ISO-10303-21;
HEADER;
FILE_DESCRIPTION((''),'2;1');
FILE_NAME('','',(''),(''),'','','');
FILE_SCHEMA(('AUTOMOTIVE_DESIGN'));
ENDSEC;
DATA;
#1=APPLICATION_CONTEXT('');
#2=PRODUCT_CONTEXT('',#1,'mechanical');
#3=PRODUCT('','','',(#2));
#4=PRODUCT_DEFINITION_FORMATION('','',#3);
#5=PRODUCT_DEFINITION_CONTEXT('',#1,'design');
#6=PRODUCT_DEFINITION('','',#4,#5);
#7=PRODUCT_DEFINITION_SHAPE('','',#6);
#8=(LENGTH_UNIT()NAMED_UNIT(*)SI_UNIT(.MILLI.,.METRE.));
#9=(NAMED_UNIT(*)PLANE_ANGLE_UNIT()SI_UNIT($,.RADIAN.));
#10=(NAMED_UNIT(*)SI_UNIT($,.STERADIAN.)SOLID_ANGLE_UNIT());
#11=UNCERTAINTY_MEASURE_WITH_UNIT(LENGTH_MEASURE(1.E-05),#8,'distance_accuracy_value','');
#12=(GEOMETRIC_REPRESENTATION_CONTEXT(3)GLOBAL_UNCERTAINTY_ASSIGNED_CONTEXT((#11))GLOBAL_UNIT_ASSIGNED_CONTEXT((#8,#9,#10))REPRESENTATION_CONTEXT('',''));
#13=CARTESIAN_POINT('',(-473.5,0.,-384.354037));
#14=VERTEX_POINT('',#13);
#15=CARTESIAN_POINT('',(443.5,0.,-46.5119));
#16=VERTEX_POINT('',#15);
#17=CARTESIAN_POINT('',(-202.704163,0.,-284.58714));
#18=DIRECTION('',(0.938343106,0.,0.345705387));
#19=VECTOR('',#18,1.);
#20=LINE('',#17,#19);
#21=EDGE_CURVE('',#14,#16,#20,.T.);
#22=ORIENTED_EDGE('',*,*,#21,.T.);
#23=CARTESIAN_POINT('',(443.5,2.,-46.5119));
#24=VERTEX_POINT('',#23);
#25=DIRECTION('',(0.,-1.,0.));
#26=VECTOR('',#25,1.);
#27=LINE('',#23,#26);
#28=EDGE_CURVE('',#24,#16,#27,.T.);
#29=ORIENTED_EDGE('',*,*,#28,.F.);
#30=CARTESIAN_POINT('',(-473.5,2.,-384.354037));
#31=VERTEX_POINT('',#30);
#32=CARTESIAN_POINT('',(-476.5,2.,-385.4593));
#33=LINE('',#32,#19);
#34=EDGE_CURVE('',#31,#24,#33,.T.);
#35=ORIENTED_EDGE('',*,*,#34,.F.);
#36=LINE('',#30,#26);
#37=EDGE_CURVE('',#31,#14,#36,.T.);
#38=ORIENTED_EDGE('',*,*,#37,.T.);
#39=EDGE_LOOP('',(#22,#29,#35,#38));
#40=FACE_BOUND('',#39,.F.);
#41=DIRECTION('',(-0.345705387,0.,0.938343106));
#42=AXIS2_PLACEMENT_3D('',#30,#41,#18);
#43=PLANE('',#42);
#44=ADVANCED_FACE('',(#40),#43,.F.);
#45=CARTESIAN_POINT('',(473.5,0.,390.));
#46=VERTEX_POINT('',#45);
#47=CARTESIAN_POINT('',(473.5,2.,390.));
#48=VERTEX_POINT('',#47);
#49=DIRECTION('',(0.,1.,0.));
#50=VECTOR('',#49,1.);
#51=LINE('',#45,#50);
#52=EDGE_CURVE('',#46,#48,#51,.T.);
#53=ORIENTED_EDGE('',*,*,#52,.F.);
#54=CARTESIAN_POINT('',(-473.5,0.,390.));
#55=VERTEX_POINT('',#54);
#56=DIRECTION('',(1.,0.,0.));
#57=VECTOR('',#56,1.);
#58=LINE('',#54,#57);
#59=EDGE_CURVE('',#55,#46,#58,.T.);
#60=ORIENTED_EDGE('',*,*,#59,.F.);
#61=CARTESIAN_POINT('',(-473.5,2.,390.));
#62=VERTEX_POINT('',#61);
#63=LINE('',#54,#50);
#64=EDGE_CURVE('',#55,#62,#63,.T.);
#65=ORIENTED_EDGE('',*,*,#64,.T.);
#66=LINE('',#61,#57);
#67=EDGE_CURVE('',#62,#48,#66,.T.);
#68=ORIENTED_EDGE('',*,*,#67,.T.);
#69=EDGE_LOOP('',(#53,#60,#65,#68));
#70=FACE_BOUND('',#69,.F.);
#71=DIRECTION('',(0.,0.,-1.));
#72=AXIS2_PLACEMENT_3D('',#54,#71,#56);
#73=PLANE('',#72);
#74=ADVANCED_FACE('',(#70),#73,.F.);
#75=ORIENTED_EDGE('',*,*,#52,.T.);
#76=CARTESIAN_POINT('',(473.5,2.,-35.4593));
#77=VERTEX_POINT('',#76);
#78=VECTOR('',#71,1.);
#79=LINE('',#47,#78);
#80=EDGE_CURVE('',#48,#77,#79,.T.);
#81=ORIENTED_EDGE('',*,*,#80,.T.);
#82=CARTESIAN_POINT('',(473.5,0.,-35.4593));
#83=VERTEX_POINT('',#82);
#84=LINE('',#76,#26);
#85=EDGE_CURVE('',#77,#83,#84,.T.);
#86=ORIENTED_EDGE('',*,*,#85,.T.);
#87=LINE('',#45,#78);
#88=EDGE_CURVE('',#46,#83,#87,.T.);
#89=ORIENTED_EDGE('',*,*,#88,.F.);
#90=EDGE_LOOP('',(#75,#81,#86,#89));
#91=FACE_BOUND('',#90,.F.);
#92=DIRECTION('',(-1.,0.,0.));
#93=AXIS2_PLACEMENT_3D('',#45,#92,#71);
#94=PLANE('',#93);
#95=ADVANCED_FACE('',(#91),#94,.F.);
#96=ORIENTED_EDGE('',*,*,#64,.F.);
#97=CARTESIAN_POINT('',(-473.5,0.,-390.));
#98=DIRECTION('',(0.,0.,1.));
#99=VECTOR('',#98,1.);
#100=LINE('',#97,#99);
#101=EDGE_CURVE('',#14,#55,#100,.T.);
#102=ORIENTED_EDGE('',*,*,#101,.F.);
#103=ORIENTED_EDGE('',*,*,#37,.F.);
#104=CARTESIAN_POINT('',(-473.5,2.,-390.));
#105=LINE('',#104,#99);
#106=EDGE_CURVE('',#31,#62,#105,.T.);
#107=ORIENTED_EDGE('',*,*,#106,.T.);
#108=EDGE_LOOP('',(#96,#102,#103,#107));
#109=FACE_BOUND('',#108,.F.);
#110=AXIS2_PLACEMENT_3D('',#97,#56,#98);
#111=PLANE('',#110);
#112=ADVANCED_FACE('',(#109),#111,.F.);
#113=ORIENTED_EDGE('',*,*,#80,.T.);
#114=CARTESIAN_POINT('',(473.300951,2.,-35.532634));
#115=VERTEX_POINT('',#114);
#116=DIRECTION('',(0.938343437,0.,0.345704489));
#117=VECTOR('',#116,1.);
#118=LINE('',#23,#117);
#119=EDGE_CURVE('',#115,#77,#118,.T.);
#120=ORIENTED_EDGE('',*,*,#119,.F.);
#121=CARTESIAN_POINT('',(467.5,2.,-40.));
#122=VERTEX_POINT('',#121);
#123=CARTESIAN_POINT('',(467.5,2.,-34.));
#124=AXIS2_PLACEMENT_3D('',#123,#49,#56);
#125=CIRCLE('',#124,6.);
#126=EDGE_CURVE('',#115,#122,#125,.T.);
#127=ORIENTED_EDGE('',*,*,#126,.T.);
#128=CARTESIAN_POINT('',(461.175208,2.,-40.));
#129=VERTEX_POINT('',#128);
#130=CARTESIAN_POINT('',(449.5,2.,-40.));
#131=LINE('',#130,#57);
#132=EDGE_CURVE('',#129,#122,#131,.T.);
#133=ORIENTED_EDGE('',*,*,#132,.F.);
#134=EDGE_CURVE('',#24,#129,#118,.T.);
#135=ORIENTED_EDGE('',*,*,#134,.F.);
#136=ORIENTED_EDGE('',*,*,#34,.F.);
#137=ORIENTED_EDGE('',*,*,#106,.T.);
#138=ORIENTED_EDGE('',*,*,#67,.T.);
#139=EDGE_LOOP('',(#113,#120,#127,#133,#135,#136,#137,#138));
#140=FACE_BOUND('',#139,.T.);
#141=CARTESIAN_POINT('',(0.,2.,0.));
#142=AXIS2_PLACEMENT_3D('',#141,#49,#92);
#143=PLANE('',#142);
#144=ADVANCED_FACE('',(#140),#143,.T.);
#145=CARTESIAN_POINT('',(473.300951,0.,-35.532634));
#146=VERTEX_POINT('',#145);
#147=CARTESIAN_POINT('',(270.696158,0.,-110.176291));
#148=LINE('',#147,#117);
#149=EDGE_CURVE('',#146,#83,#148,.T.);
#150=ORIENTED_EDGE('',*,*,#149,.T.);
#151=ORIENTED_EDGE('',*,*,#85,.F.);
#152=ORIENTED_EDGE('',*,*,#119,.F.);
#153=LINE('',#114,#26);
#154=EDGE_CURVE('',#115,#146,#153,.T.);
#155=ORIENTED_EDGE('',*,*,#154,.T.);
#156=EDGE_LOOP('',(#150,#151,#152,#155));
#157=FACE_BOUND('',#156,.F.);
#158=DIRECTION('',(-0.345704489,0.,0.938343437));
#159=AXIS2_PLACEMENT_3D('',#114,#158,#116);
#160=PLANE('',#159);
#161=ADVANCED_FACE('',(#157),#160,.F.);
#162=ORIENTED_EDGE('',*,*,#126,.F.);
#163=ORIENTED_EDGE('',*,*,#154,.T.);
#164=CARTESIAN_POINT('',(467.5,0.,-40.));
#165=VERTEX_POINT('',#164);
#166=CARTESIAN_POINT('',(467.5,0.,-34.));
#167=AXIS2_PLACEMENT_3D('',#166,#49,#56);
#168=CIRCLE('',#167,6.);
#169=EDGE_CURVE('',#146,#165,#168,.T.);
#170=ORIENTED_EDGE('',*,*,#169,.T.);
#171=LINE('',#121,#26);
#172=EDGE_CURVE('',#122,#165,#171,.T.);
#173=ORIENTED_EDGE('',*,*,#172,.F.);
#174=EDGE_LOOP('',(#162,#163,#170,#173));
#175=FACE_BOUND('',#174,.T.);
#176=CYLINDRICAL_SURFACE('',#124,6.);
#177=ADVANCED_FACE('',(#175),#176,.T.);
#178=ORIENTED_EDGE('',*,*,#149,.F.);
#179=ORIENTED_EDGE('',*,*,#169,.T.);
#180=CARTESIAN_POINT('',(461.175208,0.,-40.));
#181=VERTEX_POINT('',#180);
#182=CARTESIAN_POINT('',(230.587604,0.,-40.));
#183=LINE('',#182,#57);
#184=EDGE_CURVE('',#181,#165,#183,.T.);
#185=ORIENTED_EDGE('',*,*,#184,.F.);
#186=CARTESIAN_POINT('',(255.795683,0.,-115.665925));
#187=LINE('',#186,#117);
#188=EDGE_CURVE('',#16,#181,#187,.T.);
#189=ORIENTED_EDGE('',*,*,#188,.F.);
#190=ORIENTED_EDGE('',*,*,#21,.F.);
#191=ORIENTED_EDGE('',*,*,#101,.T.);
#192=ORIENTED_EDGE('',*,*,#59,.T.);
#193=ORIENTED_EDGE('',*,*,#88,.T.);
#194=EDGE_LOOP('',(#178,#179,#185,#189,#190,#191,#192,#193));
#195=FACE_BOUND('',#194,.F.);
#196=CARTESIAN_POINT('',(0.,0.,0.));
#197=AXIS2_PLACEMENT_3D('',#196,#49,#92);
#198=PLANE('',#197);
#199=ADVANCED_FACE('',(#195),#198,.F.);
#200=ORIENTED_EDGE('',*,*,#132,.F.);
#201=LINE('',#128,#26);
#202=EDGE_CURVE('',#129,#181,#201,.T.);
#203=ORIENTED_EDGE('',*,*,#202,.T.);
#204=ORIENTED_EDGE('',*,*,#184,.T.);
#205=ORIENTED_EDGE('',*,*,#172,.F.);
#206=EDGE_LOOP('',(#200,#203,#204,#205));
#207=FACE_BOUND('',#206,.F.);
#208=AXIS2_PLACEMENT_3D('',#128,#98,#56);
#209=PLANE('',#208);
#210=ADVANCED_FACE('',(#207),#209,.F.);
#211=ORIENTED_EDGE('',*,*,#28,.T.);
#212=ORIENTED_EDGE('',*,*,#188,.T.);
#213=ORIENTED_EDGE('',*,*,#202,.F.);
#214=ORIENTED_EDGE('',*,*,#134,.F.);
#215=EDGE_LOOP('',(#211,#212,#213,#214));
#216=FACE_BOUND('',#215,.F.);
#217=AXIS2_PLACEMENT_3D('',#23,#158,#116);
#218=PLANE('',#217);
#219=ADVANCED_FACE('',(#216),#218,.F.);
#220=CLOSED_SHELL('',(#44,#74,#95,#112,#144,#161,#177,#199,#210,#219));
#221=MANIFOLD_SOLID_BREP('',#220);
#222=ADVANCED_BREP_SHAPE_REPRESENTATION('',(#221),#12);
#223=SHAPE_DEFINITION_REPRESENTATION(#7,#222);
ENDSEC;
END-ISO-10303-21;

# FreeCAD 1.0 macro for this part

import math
import FreeCAD as App
import Part
import Sketcher
Q = App.Units.Quantity


def add_polygon(sketch, points):
    """Adds a closed chain of lines whose ends are joined by coincident constraints."""
    first, n = sketch.GeometryCount, len(points)
    for a, b in zip(points, points[1:] + points[:1]):
        sketch.addGeometry(Part.LineSegment(App.Vector(*a, 0), App.Vector(*b, 0)), False)
    for i in range(n):
        sketch.addConstraint(Sketcher.Constraint("Coincident", first + i, 2, first + (i + 1) % n, 1))

doc = App.newDocument("Part")
params = doc.addObject("Spreadsheet::Sheet", "Params")
for row, (alias, value) in enumerate([
    ("sketch1_width", "947 mm"),
    ("sketch1_height", "780 mm"),
    ("pad1_length", "2 mm"),
    ("sketch2_radius", "6 mm"),
    ("sketch2_width", "947 mm"),
    ("pocket1_length", "10 mm"),
], start=1):
    params.set(f"A{row}", alias)
    params.set(f"B{row}", "=" + value)
    params.setAlias(f"B{row}", alias)

body = doc.addObject("PartDesign::Body", "Body")

sketch1 = body.newObject("Sketcher::SketchObject", "Sketch")
sketch1.AttachmentSupport = (doc.getObject("XZ_Plane"), [""])
sketch1.MapMode = "FlatFace"
add_polygon(sketch1, [(-473.5, -390), (-473.5, 390), (473.5, 390), (473.5, -390)])
sketch1.addConstraint([
    Sketcher.Constraint("Vertical", 0),
    Sketcher.Constraint("Horizontal", 1),
    Sketcher.Constraint("Vertical", 2),
    Sketcher.Constraint("Horizontal", 3),
    Sketcher.Constraint("Symmetric", 0, 2, 2, 2, -1, 1),
    Sketcher.Constraint("DistanceX", 1, 1, 1, 2, Q("947 mm")),
    Sketcher.Constraint("DistanceY", 0, 1, 0, 2, Q("780 mm")),
])
sketch1.setExpression("Constraints[9]", "Params.sketch1_width")
sketch1.setExpression("Constraints[10]", "Params.sketch1_height")
pad1 = body.newObject("PartDesign::Pad", "Pad")
pad1.Profile = sketch1
pad1.setExpression("Length", "Params.pad1_length")
pad1.Reversed = True

sketch2 = body.newObject("Sketcher::SketchObject", "Sketch001")
sketch2.AttachmentSupport = (doc.getObject("XZ_Plane"), [""])
sketch2.MapMode = "FlatFace"
sketch2.AttachmentOffset = App.Placement(App.Vector(0, 0, -2), App.Rotation())
sketch2.addGeometry([
    Part.LineSegment(App.Vector(-473.5, -390, 0), App.Vector(-473.5, -384.354037, 0)),
    Part.LineSegment(App.Vector(-473.5, -384.354037, 0), App.Vector(443.5, -46.5119, 0)),
    Part.LineSegment(App.Vector(443.5, -46.5119, 0), App.Vector(461.175208, -40, 0)),
    Part.LineSegment(App.Vector(461.175208, -40, 0), App.Vector(467.5, -40, 0)),
    Part.ArcOfCircle(Part.Circle(App.Vector(467.5, -34, 0), App.Vector(0, 0, 1), 6), math.radians(-90), math.radians(-14.799595)),
    Part.LineSegment(App.Vector(473.300951, -35.532634, 0), App.Vector(473.5, -35.4593, 0)),
    Part.LineSegment(App.Vector(473.5, -35.4593, 0), App.Vector(473.5, -390, 0)),
    Part.LineSegment(App.Vector(473.5, -390, 0), App.Vector(-473.5, -390, 0)),
], False)
sketch2.addConstraint([
    Sketcher.Constraint("Coincident", 0, 2, 1, 1),
    Sketcher.Constraint("Coincident", 1, 2, 2, 1),
    Sketcher.Constraint("Coincident", 2, 2, 3, 1),
    Sketcher.Constraint("Tangent", 3, 2, 4, 1),
    Sketcher.Constraint("Coincident", 4, 2, 5, 1),
    Sketcher.Constraint("Coincident", 5, 2, 6, 1),
    Sketcher.Constraint("Coincident", 6, 2, 7, 1),
    Sketcher.Constraint("Coincident", 7, 2, 0, 1),
    Sketcher.Constraint("Vertical", 0),
    Sketcher.Constraint("Horizontal", 3),
    Sketcher.Constraint("Vertical", 6),
    Sketcher.Constraint("Horizontal", 7),
    Sketcher.Constraint("Parallel", 1, 2),
    Sketcher.Constraint("Parallel", 2, 5),
    Sketcher.Constraint("Radius", 4, Q("6 mm")),
    Sketcher.Constraint("DistanceX", 7, 2, 7, 1, Q("947 mm")),
    Sketcher.Constraint("DistanceY", 4, 3, -1, 1, Q("34 mm")),
    Sketcher.Constraint("DistanceY", 6, 2, -1, 1, Q("390 mm")),
    Sketcher.Constraint("DistanceX", 0, 2, 4, 3, Q("941 mm")),
    Sketcher.Constraint("DistanceX", 1, 2, 4, 3, Q("24 mm")),
    Sketcher.Constraint("DistanceX", -1, 1, 4, 3, Q("467.5 mm")),
    Sketcher.Constraint("DistanceY", 0, 1, 0, 2, Q("5.646 mm")),
    Sketcher.Constraint("DistanceX", 3, 1, 3, 2, Q("6.3248 mm")),
    Sketcher.Constraint("DistanceY", 6, 2, 6, 1, Q("354.5407 mm")),
])
sketch2.setExpression("Constraints[14]", "Params.sketch2_radius")
sketch2.setExpression("Constraints[15]", "Params.sketch2_width")
pocket1 = body.newObject("PartDesign::Pocket", "Pocket")
pocket1.Profile = sketch2
pocket1.setExpression("Length", "Params.pocket1_length")
pocket1.Reversed = True

doc.recompute()
